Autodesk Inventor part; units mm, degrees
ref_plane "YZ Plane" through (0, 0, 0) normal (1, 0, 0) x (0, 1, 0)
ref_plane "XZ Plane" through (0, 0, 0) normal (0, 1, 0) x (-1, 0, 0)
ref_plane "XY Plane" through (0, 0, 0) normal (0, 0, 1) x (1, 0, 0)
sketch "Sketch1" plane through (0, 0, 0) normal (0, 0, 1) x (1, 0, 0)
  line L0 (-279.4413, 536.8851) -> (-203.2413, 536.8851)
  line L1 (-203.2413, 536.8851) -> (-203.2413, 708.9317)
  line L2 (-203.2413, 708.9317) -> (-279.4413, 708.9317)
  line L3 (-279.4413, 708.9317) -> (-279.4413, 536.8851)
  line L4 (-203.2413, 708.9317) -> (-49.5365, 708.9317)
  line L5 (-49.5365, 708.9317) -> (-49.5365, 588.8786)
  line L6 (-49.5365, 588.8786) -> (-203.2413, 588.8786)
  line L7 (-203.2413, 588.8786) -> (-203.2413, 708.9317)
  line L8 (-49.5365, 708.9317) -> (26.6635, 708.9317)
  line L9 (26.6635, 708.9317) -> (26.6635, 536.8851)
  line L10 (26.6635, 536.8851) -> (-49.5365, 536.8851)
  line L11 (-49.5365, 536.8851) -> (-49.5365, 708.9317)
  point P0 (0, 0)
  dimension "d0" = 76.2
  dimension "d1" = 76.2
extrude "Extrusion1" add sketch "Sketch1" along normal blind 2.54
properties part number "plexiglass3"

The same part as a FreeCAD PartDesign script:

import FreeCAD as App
import Part
import Sketcher
Q = App.Units.Quantity

doc = App.newDocument("Part")
body = doc.addObject("PartDesign::Body", "Body")

sketch1 = body.newObject("Sketcher::SketchObject", "Sketch")
sketch1.AttachmentSupport = (doc.getObject("XY_Plane"), [""])
sketch1.MapMode = "FlatFace"
sketch1.addGeometry([
    Part.LineSegment(App.Vector(-279, 709, 0), App.Vector(-279, 537, 0)),
    Part.LineSegment(App.Vector(-279, 537, 0), App.Vector(-203, 537, 0)),
    Part.LineSegment(App.Vector(-203, 537, 0), App.Vector(-203, 589, 0)),
    Part.LineSegment(App.Vector(-203, 589, 0), App.Vector(-50, 589, 0)),
    Part.LineSegment(App.Vector(-50, 589, 0), App.Vector(-50, 537, 0)),
    Part.LineSegment(App.Vector(-50, 537, 0), App.Vector(27, 537, 0)),
    Part.LineSegment(App.Vector(27, 537, 0), App.Vector(27, 709, 0)),
    Part.LineSegment(App.Vector(27, 709, 0), App.Vector(-279, 709, 0)),
], False)
sketch1.addConstraint([
    Sketcher.Constraint("Coincident", 0, 2, 1, 1),
    Sketcher.Constraint("Coincident", 1, 2, 2, 1),
    Sketcher.Constraint("Coincident", 2, 2, 3, 1),
    Sketcher.Constraint("Coincident", 3, 2, 4, 1),
    Sketcher.Constraint("Coincident", 4, 2, 5, 1),
    Sketcher.Constraint("Coincident", 5, 2, 6, 1),
    Sketcher.Constraint("Coincident", 6, 2, 7, 1),
    Sketcher.Constraint("Coincident", 7, 2, 0, 1),
    Sketcher.Constraint("Vertical", 0),
    Sketcher.Constraint("Horizontal", 1),
    Sketcher.Constraint("Vertical", 2),
    Sketcher.Constraint("Horizontal", 3),
    Sketcher.Constraint("Vertical", 4),
    Sketcher.Constraint("Horizontal", 5),
    Sketcher.Constraint("Vertical", 6),
    Sketcher.Constraint("Horizontal", 7),
    Sketcher.Constraint("Horizontal", 1, 2, 4, 2),
    Sketcher.Constraint("Equal", 1, 5),
    Sketcher.Constraint("DistanceX", 1, 1, 1, 2, Q("3 in")),
    Sketcher.Constraint("DistanceY", 2, 1, 2, 2, Q("2.047 in")),
    Sketcher.Constraint("DistanceY", 0, 2, 0, 1, Q("6.7735 in")),
    Sketcher.Constraint("DistanceX", 3, 1, 3, 2, 153.7048),
    Sketcher.Constraint("DistanceY", -1, 1, 0, 2, Q("21.1372 in")),
    Sketcher.Constraint("DistanceX", 0, 2, -1, 1, 279.4413),
])
pad1 = body.newObject("PartDesign::Pad", "Pad")
pad1.Profile = sketch1
pad1.Length = Q("0.1 in")

doc.recompute()
